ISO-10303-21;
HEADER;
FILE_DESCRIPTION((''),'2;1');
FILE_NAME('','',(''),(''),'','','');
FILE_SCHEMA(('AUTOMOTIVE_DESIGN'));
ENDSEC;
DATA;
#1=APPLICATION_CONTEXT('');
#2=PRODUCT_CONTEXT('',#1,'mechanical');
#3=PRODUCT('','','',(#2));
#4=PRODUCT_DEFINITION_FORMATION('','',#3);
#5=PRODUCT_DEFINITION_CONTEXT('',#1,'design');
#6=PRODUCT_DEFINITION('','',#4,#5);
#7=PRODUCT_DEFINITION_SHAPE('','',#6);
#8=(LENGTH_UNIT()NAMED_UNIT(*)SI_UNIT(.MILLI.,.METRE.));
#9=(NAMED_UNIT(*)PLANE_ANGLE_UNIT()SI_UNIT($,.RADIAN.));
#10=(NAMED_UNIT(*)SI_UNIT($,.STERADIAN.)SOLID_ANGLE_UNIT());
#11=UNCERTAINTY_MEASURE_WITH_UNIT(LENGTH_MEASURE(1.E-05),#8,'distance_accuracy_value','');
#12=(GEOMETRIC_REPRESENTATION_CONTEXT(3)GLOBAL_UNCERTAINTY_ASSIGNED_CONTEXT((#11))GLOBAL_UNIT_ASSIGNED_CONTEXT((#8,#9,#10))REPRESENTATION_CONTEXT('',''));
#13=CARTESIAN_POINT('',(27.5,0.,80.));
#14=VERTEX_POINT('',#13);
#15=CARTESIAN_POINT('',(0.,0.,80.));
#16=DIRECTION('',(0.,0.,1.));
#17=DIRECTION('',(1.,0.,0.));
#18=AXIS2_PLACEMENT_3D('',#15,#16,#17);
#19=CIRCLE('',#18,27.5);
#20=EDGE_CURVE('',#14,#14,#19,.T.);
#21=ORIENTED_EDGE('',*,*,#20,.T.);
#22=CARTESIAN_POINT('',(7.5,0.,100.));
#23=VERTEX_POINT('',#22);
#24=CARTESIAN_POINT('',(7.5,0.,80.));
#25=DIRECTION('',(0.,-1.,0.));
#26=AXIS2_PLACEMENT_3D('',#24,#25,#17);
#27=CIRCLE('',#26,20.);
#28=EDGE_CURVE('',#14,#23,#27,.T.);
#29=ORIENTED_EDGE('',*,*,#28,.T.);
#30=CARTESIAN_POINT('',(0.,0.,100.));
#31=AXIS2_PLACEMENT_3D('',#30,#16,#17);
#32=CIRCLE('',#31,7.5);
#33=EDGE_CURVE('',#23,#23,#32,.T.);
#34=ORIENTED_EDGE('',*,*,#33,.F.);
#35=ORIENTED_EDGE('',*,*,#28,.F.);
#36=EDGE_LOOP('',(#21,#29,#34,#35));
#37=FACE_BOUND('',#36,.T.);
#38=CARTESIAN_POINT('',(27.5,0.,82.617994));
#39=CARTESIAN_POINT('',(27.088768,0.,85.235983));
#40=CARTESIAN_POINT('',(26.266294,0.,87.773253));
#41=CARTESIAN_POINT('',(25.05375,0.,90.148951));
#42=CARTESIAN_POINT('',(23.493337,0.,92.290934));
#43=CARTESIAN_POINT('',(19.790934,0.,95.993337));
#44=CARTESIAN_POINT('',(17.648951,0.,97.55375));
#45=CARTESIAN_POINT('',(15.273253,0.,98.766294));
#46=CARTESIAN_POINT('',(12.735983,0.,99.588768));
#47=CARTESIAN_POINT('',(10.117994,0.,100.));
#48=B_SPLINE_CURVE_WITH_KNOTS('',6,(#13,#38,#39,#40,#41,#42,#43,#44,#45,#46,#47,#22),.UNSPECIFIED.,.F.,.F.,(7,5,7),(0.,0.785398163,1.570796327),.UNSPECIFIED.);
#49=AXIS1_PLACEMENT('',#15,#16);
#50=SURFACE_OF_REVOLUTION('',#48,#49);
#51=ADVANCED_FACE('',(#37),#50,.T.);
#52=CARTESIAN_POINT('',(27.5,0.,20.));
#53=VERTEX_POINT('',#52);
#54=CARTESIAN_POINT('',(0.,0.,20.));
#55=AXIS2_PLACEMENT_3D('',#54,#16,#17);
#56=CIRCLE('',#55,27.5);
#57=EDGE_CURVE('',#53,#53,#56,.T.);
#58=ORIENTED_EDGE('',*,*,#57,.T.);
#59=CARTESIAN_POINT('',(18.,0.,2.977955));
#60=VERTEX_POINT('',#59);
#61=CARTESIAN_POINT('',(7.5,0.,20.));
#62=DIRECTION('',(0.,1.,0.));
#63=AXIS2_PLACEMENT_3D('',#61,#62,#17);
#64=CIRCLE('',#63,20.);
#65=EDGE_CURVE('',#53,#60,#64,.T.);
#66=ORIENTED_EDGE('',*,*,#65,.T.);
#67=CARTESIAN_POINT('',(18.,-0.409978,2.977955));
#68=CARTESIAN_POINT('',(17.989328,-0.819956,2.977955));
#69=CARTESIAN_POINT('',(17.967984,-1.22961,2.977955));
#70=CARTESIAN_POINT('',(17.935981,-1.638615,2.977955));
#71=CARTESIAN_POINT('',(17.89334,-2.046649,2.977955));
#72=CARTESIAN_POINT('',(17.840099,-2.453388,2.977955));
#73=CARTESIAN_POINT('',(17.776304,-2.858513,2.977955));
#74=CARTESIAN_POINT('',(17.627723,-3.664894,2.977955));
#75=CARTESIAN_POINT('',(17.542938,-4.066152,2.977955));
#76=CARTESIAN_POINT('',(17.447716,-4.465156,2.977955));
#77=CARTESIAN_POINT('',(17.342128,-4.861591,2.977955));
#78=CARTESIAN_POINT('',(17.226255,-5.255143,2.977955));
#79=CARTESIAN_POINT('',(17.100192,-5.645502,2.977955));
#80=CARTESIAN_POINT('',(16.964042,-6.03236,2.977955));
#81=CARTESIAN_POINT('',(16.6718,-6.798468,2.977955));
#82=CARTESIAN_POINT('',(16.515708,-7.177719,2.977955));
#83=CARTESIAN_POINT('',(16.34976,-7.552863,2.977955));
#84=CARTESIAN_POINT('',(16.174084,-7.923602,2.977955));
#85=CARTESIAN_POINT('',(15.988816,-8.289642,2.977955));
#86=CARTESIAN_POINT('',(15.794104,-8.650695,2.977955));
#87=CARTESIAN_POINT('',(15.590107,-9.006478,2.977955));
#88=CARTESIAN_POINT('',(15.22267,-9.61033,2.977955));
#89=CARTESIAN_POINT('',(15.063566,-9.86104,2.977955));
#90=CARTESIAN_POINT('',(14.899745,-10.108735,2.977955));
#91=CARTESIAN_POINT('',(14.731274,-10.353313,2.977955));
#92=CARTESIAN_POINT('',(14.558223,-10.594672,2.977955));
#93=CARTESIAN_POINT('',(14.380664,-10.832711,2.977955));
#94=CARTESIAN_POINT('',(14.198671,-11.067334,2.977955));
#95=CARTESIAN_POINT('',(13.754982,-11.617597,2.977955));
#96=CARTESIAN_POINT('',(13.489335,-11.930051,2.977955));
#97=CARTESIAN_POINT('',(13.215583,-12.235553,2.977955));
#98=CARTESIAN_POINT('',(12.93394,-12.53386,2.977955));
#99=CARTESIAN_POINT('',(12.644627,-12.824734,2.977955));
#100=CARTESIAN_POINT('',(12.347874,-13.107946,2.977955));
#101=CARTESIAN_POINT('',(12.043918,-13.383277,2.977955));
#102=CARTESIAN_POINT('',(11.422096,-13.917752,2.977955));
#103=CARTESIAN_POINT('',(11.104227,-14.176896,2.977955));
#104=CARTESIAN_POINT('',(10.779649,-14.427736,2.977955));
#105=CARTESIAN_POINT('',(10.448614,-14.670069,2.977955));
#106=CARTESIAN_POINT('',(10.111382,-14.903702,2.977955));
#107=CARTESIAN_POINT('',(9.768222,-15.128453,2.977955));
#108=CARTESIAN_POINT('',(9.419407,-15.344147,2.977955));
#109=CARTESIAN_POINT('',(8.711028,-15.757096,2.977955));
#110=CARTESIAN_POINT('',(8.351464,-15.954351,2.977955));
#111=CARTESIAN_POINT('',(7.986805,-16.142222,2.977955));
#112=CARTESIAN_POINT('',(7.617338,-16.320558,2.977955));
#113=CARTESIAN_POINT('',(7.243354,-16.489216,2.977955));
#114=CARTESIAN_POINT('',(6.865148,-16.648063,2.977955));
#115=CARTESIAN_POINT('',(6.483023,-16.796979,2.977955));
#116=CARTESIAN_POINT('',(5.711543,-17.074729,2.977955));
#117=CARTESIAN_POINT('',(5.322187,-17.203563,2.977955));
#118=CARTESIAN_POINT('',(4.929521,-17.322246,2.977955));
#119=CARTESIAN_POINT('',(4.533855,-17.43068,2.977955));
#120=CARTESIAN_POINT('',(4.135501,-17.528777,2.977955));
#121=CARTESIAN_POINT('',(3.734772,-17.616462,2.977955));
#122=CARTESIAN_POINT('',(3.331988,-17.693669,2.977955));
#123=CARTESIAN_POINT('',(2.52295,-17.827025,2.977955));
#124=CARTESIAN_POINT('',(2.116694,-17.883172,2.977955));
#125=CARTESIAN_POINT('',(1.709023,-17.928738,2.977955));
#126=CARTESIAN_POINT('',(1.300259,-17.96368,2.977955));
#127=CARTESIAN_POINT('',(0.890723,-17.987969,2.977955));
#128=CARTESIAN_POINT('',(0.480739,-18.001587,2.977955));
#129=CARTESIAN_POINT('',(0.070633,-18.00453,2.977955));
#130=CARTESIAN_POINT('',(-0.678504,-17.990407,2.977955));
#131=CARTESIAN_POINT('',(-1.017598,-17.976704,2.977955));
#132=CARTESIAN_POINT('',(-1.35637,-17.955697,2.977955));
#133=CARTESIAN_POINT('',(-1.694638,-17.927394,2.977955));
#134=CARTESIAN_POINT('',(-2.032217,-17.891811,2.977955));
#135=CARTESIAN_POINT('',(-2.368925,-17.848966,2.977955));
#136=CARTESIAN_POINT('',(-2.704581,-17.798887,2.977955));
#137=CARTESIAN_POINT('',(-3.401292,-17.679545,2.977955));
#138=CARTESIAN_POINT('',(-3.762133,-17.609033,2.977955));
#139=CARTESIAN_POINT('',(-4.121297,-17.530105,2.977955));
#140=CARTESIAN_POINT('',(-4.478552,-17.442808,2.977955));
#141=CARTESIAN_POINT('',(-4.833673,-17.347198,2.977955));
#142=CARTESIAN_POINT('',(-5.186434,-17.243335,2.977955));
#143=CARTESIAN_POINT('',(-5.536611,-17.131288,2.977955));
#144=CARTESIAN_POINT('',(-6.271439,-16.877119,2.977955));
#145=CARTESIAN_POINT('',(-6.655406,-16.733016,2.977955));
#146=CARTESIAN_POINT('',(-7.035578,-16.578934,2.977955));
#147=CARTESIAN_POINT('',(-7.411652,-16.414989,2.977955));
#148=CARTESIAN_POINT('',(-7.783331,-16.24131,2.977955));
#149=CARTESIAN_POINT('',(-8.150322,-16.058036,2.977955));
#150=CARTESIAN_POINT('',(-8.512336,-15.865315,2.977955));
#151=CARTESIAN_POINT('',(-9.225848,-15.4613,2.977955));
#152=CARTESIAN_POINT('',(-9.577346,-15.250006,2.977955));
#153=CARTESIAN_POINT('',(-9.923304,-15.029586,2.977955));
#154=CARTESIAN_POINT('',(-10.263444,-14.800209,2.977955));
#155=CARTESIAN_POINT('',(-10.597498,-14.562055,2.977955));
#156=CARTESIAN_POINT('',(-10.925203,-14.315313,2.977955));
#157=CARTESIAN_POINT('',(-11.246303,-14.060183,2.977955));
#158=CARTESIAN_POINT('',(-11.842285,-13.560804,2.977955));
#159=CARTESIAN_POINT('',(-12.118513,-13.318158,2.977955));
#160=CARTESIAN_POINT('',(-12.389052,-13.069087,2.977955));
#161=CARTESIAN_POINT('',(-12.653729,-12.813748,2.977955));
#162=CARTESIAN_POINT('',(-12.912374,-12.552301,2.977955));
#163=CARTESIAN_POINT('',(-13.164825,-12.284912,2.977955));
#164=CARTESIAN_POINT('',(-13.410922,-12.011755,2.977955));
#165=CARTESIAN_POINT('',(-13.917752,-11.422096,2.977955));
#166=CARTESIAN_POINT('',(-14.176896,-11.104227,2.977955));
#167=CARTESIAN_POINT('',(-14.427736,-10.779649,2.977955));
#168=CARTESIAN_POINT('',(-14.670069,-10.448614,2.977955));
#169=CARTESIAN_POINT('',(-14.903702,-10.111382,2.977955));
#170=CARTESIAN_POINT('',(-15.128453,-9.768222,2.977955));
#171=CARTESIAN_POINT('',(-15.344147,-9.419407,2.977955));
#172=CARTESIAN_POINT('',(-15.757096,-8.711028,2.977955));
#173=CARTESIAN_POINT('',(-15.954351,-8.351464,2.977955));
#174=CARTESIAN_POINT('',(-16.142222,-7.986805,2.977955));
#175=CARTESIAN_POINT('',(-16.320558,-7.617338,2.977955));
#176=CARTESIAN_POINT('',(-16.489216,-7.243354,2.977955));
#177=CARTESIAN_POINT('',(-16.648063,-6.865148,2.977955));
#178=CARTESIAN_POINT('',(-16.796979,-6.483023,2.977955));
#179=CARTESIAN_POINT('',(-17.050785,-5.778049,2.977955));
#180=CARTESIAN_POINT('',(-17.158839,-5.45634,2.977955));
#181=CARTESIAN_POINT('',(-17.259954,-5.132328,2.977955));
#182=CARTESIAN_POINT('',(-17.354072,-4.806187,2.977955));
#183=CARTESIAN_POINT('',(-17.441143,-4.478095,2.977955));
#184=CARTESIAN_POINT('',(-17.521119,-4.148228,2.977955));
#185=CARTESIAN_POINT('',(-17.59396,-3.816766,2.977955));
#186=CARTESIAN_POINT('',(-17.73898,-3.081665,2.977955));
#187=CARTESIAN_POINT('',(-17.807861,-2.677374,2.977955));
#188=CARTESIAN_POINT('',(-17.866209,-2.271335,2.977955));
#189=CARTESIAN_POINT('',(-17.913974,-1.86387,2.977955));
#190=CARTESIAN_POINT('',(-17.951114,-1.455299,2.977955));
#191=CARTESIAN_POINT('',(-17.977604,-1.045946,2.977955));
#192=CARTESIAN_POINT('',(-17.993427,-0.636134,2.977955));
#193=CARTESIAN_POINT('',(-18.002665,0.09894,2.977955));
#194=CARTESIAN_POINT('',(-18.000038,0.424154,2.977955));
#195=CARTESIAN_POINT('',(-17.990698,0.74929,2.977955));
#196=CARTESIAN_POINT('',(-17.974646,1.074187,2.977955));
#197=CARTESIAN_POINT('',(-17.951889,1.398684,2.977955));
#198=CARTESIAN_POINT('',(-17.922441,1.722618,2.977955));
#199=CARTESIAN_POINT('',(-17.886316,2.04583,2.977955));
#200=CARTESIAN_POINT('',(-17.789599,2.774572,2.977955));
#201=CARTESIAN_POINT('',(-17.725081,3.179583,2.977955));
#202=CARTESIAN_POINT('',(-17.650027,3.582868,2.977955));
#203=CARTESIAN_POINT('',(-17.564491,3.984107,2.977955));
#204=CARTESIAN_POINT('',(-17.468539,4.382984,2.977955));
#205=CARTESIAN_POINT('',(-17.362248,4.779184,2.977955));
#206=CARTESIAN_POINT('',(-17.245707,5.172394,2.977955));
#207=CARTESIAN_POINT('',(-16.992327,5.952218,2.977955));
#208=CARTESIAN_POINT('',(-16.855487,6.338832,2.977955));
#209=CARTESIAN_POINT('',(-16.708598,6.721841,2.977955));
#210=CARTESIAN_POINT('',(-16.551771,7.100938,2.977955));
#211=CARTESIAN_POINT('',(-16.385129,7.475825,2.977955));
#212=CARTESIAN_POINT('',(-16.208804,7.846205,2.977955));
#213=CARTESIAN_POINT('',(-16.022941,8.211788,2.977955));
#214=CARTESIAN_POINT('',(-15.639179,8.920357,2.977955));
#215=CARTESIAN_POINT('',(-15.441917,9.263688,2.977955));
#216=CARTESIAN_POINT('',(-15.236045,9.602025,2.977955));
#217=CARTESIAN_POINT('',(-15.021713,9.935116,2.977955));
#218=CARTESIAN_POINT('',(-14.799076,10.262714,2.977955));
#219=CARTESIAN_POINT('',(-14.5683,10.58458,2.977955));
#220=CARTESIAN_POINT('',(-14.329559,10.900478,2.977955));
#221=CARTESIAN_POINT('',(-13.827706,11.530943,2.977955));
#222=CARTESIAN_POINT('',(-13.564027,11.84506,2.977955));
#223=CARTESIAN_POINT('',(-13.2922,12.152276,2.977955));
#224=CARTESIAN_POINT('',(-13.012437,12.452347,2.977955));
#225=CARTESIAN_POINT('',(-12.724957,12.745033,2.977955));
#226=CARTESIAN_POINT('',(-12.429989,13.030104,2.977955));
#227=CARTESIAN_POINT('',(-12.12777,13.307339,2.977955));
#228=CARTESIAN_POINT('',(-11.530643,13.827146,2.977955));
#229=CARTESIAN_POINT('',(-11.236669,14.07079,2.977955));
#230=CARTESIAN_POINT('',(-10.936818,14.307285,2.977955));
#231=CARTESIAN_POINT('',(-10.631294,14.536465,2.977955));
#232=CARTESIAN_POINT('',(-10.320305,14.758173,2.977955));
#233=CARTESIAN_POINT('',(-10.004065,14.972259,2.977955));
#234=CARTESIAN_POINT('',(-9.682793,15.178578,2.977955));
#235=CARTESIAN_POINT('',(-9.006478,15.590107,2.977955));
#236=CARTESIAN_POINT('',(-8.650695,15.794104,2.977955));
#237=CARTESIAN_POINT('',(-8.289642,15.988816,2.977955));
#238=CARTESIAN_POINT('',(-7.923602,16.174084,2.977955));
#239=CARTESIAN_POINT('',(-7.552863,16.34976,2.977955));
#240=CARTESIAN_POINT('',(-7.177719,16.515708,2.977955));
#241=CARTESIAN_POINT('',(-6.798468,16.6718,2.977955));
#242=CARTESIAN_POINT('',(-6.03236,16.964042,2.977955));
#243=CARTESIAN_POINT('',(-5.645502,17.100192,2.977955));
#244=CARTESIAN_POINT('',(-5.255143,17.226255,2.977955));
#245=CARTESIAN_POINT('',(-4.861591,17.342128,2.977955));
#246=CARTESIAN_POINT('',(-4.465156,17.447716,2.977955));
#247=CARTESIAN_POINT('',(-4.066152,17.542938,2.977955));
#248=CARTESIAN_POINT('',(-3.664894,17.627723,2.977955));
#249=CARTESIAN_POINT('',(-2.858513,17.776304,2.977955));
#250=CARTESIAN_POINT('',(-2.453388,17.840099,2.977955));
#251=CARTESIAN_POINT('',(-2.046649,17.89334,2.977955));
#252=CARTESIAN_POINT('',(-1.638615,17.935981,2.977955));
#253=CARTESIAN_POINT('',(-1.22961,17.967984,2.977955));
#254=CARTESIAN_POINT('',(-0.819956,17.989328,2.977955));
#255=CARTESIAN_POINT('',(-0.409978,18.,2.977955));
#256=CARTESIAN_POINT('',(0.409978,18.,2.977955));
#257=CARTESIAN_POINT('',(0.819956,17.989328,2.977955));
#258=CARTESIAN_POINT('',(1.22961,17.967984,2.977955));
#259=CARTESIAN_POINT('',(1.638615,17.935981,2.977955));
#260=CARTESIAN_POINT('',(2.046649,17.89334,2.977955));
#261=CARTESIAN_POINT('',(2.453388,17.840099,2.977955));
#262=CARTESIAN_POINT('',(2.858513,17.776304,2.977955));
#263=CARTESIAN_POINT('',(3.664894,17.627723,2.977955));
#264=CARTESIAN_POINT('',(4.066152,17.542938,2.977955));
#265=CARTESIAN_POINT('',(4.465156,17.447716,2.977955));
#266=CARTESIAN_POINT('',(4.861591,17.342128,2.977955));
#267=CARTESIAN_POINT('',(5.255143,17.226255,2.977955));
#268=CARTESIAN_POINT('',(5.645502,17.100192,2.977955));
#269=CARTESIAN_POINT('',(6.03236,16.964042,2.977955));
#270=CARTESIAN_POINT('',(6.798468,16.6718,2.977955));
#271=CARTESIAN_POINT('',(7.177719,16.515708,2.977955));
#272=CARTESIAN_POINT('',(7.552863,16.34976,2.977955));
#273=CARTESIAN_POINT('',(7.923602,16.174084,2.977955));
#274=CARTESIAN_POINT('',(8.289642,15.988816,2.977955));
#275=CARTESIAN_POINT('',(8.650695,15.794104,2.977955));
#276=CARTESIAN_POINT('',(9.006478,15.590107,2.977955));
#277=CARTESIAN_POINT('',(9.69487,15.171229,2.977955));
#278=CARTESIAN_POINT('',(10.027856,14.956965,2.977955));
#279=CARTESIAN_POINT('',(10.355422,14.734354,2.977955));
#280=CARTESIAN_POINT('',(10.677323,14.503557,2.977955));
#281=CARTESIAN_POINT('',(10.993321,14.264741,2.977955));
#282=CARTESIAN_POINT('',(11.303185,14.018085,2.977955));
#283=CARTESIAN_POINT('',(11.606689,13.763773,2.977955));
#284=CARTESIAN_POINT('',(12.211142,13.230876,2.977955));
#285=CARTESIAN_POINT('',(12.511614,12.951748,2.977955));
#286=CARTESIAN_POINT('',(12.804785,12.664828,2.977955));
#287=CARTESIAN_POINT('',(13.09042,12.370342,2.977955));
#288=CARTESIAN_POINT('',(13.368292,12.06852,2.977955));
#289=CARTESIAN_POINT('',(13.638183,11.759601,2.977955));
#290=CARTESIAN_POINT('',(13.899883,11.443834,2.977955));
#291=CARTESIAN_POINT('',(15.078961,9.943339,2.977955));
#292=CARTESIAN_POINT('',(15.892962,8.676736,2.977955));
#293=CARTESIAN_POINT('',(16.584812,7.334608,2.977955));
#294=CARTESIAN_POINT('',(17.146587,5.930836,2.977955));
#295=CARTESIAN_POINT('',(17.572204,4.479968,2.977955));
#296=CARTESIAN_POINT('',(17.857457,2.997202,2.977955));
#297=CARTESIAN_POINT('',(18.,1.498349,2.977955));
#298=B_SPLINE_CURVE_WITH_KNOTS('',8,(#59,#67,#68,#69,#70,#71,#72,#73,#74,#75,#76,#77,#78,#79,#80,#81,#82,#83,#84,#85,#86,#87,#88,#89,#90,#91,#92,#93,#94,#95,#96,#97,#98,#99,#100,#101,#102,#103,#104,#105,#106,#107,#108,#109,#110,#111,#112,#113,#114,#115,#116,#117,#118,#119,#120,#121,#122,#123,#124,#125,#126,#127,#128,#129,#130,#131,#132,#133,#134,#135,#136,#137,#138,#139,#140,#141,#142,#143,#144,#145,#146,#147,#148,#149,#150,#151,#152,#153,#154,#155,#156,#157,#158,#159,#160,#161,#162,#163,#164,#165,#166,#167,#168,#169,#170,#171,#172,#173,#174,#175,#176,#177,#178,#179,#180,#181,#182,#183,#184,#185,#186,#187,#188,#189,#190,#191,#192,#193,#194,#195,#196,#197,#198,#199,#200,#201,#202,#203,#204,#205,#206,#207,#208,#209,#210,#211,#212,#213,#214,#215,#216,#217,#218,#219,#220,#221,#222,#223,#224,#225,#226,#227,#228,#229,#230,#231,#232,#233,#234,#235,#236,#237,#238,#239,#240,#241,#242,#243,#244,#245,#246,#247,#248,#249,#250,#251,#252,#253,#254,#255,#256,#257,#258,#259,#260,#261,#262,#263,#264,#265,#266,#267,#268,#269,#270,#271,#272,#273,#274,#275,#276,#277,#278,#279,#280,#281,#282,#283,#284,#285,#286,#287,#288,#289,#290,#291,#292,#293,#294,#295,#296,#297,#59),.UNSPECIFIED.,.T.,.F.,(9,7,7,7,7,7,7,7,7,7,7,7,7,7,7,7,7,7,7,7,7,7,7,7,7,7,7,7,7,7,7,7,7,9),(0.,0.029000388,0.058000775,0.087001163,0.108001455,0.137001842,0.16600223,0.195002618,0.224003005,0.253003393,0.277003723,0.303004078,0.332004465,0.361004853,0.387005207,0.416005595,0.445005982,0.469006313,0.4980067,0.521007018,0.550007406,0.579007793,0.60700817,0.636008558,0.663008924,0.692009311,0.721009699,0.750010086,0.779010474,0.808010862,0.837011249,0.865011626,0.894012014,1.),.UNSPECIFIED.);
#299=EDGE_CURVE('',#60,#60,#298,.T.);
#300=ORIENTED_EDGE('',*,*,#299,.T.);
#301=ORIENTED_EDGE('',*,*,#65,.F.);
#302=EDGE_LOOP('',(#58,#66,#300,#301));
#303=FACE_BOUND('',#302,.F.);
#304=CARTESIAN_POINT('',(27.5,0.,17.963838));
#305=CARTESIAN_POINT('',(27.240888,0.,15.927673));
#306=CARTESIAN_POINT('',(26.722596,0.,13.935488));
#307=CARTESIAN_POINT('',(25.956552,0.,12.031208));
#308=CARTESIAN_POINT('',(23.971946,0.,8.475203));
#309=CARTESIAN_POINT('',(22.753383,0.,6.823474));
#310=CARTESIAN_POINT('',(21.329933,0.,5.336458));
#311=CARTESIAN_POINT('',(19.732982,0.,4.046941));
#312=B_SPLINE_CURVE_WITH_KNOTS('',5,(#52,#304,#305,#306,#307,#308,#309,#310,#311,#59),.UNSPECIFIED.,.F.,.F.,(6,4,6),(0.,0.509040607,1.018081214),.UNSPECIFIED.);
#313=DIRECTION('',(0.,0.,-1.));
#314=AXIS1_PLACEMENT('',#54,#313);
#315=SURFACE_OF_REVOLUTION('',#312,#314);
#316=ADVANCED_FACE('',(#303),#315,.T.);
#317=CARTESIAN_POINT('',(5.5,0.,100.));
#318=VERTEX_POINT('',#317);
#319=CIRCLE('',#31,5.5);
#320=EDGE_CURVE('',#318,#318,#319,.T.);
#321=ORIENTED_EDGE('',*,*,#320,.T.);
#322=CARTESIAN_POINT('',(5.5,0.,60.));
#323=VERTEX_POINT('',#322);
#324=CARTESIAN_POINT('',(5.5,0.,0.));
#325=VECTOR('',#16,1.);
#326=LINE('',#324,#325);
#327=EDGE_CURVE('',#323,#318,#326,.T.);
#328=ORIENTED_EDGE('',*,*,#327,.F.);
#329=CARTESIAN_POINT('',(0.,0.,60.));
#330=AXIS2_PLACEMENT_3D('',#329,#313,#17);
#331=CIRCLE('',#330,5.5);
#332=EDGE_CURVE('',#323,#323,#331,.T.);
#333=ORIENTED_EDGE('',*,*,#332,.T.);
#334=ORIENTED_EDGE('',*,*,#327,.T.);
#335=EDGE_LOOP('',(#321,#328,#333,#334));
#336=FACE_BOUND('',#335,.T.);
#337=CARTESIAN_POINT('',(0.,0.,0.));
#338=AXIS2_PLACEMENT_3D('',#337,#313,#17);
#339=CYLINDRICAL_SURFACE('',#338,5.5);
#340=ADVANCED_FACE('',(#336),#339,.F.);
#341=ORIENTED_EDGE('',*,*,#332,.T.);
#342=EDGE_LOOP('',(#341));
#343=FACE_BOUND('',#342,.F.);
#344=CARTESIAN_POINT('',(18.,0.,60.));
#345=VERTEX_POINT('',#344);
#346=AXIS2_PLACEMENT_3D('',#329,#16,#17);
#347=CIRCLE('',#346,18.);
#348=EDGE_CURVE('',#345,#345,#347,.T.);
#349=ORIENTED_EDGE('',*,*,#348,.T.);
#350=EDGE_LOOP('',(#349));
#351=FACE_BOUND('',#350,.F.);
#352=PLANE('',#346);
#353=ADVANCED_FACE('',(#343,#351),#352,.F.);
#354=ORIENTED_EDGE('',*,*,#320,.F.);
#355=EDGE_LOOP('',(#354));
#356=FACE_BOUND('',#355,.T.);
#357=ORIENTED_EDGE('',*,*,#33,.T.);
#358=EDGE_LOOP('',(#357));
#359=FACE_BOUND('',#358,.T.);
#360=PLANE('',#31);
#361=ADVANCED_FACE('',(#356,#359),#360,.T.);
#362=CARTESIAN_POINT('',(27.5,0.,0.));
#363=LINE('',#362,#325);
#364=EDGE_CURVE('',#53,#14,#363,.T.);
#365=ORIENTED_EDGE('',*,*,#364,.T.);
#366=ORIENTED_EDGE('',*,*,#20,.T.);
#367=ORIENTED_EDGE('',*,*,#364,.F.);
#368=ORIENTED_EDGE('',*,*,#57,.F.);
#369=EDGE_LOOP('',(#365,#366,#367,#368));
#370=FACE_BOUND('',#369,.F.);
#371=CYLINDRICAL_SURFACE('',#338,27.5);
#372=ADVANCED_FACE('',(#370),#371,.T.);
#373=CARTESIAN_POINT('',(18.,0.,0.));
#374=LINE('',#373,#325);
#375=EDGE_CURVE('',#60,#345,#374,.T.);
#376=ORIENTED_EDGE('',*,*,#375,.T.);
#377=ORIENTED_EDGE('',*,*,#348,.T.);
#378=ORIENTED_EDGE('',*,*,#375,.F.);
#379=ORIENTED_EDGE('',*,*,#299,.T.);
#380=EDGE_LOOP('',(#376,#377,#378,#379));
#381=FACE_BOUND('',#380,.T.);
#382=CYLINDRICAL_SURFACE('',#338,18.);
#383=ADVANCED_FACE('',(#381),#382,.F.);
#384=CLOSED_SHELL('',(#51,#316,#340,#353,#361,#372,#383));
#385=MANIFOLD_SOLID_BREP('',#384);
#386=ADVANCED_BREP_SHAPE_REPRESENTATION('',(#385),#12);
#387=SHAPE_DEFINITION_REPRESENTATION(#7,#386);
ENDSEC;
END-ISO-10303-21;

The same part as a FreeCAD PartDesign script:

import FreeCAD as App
import Part
import Sketcher
from FreeCAD import Vector
Q = App.Units.Quantity


def edges_at(feature, points):
    """Names of the edges that pass closest to the given points."""
    edges = feature.Shape.Edges
    near = lambda p: min(range(len(edges)), key=lambda i: edges[i].distToShape(Part.Vertex(*p))[0])
    return sorted({f"Edge{near(p) + 1}" for p in points})

doc = App.newDocument("Part")
body = doc.addObject("PartDesign::Body", "Body")

sketch1 = body.newObject("Sketcher::SketchObject", "Sketch")
sketch1.AttachmentSupport = (doc.getObject("XY_Plane"), [""])
sketch1.MapMode = "FlatFace"
sketch1.addGeometry([
    Part.Circle(Vector(0, 0, 0), Vector(0, 0, 1), 27.5),
    Part.Circle(Vector(0, 0, 0), Vector(0, 0, 1), 5.5),
], False)
sketch1.addConstraint([
    Sketcher.Constraint("Coincident", 0, 3, -1, 1),
    Sketcher.Constraint("Coincident", 1, 3, -1, 1),
    Sketcher.Constraint("Diameter", 0, Q("55 mm")),
    Sketcher.Constraint("Diameter", 1, Q("11 mm")),
])
pad1 = body.newObject("PartDesign::Pad", "Pad")
pad1.Profile = sketch1
pad1.Length = 100
doc.recompute()

fillet = body.newObject("PartDesign::Fillet", "Fillet")
fillet.Base = (pad1, edges_at(pad1, [(-27.5, 0, 100), (-27.5, 0, 0)]))
fillet.Radius = 20
body2 = doc.addObject("PartDesign::Body", "Body001")

sketch2 = body2.newObject("Sketcher::SketchObject", "Sketch001")
sketch2.AttachmentSupport = (doc.getObject("XY_Plane001"), [""])
sketch2.MapMode = "FlatFace"
sketch2.addGeometry(Part.Circle(Vector(0, 0, 0), Vector(0, 0, 1), 18), False)
sketch2.addConstraint([
    Sketcher.Constraint("Coincident", 0, 3, -1, 1),
    Sketcher.Constraint("Diameter", 0, Q("36 mm")),
])
pad2 = body2.newObject("PartDesign::Pad", "Pad001")
pad2.Profile = sketch2
pad2.Length = 60
doc.recompute()

boolean = body.newObject("PartDesign::Boolean", "Boolean")
boolean.Type = "Cut"
boolean.addObjects([body2])

doc.recompute()
